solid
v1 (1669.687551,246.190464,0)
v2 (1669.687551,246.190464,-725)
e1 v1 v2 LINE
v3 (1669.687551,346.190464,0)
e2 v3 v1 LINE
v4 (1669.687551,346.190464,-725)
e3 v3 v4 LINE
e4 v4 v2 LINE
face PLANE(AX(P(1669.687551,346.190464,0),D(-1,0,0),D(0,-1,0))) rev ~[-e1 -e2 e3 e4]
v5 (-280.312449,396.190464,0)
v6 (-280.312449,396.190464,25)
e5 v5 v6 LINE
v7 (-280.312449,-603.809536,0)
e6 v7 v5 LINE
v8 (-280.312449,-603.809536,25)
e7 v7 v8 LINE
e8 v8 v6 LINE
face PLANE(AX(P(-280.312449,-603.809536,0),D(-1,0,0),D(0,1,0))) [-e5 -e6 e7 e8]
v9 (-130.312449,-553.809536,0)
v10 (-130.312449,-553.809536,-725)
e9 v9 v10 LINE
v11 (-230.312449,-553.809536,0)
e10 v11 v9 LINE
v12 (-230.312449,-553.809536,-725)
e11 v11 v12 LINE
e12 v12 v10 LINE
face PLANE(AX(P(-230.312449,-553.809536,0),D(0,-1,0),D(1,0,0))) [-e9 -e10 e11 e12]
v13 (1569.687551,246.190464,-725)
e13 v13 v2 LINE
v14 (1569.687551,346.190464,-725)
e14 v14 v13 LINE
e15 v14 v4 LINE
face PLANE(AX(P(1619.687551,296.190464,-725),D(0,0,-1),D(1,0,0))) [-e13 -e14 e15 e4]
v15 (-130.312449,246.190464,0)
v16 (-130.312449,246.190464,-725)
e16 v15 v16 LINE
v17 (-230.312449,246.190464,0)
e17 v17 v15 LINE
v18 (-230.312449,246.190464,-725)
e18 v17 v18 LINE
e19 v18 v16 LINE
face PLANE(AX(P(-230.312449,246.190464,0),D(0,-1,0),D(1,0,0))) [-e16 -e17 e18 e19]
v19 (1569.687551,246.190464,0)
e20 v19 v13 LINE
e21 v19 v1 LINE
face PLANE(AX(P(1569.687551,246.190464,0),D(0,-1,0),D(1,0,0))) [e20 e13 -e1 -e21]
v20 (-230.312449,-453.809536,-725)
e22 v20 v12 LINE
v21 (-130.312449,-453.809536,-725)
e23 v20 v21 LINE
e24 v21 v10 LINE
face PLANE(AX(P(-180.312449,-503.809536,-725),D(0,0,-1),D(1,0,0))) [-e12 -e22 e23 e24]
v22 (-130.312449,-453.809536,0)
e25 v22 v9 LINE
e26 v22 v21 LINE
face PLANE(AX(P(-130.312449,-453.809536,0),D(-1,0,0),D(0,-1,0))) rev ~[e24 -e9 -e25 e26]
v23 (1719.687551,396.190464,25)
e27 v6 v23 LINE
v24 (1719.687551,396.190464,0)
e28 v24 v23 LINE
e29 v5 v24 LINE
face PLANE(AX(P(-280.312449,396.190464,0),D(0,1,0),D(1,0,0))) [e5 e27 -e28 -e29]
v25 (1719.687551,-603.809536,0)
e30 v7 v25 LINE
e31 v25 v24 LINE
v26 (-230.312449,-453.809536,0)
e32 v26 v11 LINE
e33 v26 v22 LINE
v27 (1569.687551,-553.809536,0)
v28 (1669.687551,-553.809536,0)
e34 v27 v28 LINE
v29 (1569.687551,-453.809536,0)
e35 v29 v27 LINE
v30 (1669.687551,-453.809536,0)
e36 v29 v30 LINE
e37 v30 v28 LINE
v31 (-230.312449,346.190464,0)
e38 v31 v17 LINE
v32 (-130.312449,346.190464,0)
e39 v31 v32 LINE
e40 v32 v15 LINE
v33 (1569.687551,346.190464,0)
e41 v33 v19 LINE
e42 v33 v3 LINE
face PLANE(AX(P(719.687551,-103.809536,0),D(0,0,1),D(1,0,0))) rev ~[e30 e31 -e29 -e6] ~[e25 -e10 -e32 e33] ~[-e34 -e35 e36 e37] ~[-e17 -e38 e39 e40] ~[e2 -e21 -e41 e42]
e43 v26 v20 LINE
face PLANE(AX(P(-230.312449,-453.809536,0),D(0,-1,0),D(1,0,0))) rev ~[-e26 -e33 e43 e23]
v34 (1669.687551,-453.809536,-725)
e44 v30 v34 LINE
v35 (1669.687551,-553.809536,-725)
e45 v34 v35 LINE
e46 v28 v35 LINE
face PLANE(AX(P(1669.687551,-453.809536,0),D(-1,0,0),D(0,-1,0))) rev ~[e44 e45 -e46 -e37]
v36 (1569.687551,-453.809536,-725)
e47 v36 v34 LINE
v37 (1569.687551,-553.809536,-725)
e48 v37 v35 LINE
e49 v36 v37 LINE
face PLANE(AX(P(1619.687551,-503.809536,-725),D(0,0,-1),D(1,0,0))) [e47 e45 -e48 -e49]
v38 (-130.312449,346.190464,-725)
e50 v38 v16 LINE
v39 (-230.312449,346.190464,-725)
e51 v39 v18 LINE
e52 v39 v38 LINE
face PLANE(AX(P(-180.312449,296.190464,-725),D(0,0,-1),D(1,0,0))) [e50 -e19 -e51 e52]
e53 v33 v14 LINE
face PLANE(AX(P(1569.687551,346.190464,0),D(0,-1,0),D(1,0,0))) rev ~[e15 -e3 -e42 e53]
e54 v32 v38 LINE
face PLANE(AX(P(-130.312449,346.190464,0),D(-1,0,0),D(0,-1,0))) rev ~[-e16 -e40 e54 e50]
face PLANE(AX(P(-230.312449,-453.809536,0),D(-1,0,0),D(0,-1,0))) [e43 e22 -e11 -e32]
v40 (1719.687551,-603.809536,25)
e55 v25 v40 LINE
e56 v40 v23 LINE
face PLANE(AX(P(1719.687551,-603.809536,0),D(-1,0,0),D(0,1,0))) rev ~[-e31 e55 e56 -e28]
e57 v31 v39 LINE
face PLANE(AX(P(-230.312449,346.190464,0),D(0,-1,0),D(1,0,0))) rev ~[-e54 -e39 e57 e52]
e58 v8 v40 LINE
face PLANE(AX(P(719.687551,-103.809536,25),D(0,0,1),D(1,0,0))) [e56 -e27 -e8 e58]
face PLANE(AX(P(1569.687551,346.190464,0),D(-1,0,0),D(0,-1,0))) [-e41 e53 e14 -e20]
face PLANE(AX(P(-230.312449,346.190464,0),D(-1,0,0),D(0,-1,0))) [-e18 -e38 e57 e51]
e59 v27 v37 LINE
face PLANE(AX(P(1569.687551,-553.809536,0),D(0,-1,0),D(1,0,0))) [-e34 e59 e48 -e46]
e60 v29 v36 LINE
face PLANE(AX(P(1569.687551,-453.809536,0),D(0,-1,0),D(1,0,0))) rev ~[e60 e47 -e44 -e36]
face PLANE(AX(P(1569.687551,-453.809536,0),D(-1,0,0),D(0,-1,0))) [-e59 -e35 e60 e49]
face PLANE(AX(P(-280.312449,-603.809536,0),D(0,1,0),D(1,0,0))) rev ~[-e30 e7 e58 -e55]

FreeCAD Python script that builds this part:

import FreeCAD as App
import Part
import Sketcher

doc = App.newDocument("Part")
params = doc.addObject("Spreadsheet::Sheet", "Params")
for row, (alias, value) in enumerate([
    ("sketch1_width", "2000 mm"),
    ("sketch1_height", "1000 mm"),
    ("pad1_length", "25 mm"),
    ("sketch2_width", "100 mm"),
    ("pad2_length", "725 mm"),
], start=1):
    params.set(f"A{row}", alias)
    params.set(f"B{row}", "=" + value)
    params.setAlias(f"B{row}", alias)

body = doc.addObject("PartDesign::Body", "Body")

# Sketch on XY plane
sketch1 = doc.addObject("Sketcher::SketchObject", "Sketch")
body.addObject(sketch1)
sketch1.AttachmentSupport = (doc.XY_Plane, [""])
sketch1.MapMode = "FlatFace"
sketch1.addGeometry([
    Part.LineSegment(App.Vector(-280, 396, 0), App.Vector(-280, -604, 0)),
    Part.LineSegment(App.Vector(-280, -604, 0), App.Vector(1720, -604, 0)),
    Part.LineSegment(App.Vector(1720, -604, 0), App.Vector(1720, 396, 0)),
    Part.LineSegment(App.Vector(1720, 396, 0), App.Vector(-280, 396, 0)),
], False)
sketch1.addConstraint([
    Sketcher.Constraint("Coincident", 0, 2, 1, 1),
    Sketcher.Constraint("Coincident", 1, 2, 2, 1),
    Sketcher.Constraint("Coincident", 2, 2, 3, 1),
    Sketcher.Constraint("Coincident", 3, 2, 0, 1),
    Sketcher.Constraint("Vertical", 0),
    Sketcher.Constraint("Horizontal", 1),
    Sketcher.Constraint("Vertical", 2),
    Sketcher.Constraint("Horizontal", 3),
    Sketcher.Constraint("DistanceX", 1, 1, 1, 2, 2000.0),
    Sketcher.Constraint("DistanceY", 0, 2, 0, 1, 1000.0),
    Sketcher.Constraint("DistanceX", 0, 2, -1, 1, 280.312449),
    Sketcher.Constraint("DistanceY", 0, 2, -1, 1, 603.809536),
])
sketch1.setExpression("Constraints[8]", "Params.sketch1_width")
sketch1.setExpression("Constraints[9]", "Params.sketch1_height")
pad1 = doc.addObject("PartDesign::Pad", "Pad")
body.addObject(pad1)
pad1.Profile = sketch1
pad1.setExpression("Length", "Params.pad1_length")

# Sketch on XY plane
sketch2 = doc.addObject("Sketcher::SketchObject", "Sketch001")
body.addObject(sketch2)
sketch2.AttachmentSupport = (doc.XY_Plane, [""])
sketch2.MapMode = "FlatFace"
sketch2.addGeometry([
    Part.LineSegment(App.Vector(-230, -554, 0), App.Vector(-230, -454, 0)),  # 0
    Part.LineSegment(App.Vector(-230, -454, 0), App.Vector(-130, -454, 0)),  # 1
    Part.LineSegment(App.Vector(-130, -454, 0), App.Vector(-130, -554, 0)),  # 2
    Part.LineSegment(App.Vector(-130, -554, 0), App.Vector(-230, -554, 0)),  # 3
    Part.LineSegment(App.Vector(-230, 246, 0), App.Vector(-230, 346, 0)),  # 4
    Part.LineSegment(App.Vector(-230, 346, 0), App.Vector(-130, 346, 0)),  # 5
    Part.LineSegment(App.Vector(-130, 346, 0), App.Vector(-130, 246, 0)),  # 6
    Part.LineSegment(App.Vector(-130, 246, 0), App.Vector(-230, 246, 0)),  # 7
    Part.LineSegment(App.Vector(1570, -554, 0), App.Vector(1570, -454, 0)),  # 8
    Part.LineSegment(App.Vector(1570, -454, 0), App.Vector(1670, -454, 0)),  # 9
    Part.LineSegment(App.Vector(1670, -454, 0), App.Vector(1670, -554, 0)),  # 10
    Part.LineSegment(App.Vector(1670, -554, 0), App.Vector(1570, -554, 0)),  # 11
    Part.LineSegment(App.Vector(1570, 246, 0), App.Vector(1570, 346, 0)),  # 12
    Part.LineSegment(App.Vector(1570, 346, 0), App.Vector(1670, 346, 0)),  # 13
    Part.LineSegment(App.Vector(1670, 346, 0), App.Vector(1670, 246, 0)),  # 14
    Part.LineSegment(App.Vector(1670, 246, 0), App.Vector(1570, 246, 0)),  # 15
], False)
sketch2.addConstraint([
    Sketcher.Constraint("Coincident", 0, 2, 1, 1),
    Sketcher.Constraint("Coincident", 1, 2, 2, 1),
    Sketcher.Constraint("Coincident", 2, 2, 3, 1),
    Sketcher.Constraint("Coincident", 3, 2, 0, 1),
    Sketcher.Constraint("Coincident", 4, 2, 5, 1),
    Sketcher.Constraint("Coincident", 5, 2, 6, 1),
    Sketcher.Constraint("Coincident", 6, 2, 7, 1),
    Sketcher.Constraint("Coincident", 7, 2, 4, 1),
    Sketcher.Constraint("Coincident", 8, 2, 9, 1),
    Sketcher.Constraint("Coincident", 9, 2, 10, 1),
    Sketcher.Constraint("Coincident", 10, 2, 11, 1),
    Sketcher.Constraint("Coincident", 11, 2, 8, 1),
    Sketcher.Constraint("Coincident", 12, 2, 13, 1),
    Sketcher.Constraint("Coincident", 13, 2, 14, 1),
    Sketcher.Constraint("Coincident", 14, 2, 15, 1),
    Sketcher.Constraint("Coincident", 15, 2, 12, 1),
    Sketcher.Constraint("Vertical", 0),
    Sketcher.Constraint("Horizontal", 1),
    Sketcher.Constraint("Vertical", 2),
    Sketcher.Constraint("Horizontal", 3),
    Sketcher.Constraint("Vertical", 4),
    Sketcher.Constraint("Horizontal", 5),
    Sketcher.Constraint("Vertical", 6),
    Sketcher.Constraint("Horizontal", 7),
    Sketcher.Constraint("Vertical", 8),
    Sketcher.Constraint("Horizontal", 9),
    Sketcher.Constraint("Vertical", 10),
    Sketcher.Constraint("Horizontal", 11),
    Sketcher.Constraint("Vertical", 12),
    Sketcher.Constraint("Horizontal", 13),
    Sketcher.Constraint("Vertical", 14),
    Sketcher.Constraint("Horizontal", 15),
    Sketcher.Constraint("Horizontal", 1, 2, 8, 2),
    Sketcher.Constraint("Horizontal", 3, 2, 10, 2),
    Sketcher.Constraint("Horizontal", 5, 2, 12, 2),
    Sketcher.Constraint("Horizontal", 7, 2, 14, 2),
    Sketcher.Constraint("Vertical", 3, 2, 4, 2),
    Sketcher.Constraint("Vertical", 2, 2, 5, 2),
    Sketcher.Constraint("Vertical", 11, 2, 12, 2),
    Sketcher.Constraint("Vertical", 10, 2, 13, 2),
    Sketcher.Constraint("Equal", 7, 9),
    Sketcher.Constraint("Equal", 15, 0),
    Sketcher.Constraint("Equal", 2, 4),
    Sketcher.Constraint("DistanceX", 1, 1, 1, 2, 100.0),
    Sketcher.Constraint("DistanceY", 0, 2, 4, 2, 800.0),
    Sketcher.Constraint("DistanceX", 1, 2, 8, 2, 1700.0),
    Sketcher.Constraint("DistanceX", 0, 2, -1, 1, 230.312449),
    Sketcher.Constraint("DistanceY", 0, 2, -1, 1, 453.809536),
])
sketch2.setExpression("Constraints[43]", "Params.sketch2_width")
pad2 = doc.addObject("PartDesign::Pad", "Pad001")
body.addObject(pad2)
pad2.Profile = sketch2
pad2.setExpression("Length", "Params.pad2_length")
pad2.Reversed = True

doc.recompute()
